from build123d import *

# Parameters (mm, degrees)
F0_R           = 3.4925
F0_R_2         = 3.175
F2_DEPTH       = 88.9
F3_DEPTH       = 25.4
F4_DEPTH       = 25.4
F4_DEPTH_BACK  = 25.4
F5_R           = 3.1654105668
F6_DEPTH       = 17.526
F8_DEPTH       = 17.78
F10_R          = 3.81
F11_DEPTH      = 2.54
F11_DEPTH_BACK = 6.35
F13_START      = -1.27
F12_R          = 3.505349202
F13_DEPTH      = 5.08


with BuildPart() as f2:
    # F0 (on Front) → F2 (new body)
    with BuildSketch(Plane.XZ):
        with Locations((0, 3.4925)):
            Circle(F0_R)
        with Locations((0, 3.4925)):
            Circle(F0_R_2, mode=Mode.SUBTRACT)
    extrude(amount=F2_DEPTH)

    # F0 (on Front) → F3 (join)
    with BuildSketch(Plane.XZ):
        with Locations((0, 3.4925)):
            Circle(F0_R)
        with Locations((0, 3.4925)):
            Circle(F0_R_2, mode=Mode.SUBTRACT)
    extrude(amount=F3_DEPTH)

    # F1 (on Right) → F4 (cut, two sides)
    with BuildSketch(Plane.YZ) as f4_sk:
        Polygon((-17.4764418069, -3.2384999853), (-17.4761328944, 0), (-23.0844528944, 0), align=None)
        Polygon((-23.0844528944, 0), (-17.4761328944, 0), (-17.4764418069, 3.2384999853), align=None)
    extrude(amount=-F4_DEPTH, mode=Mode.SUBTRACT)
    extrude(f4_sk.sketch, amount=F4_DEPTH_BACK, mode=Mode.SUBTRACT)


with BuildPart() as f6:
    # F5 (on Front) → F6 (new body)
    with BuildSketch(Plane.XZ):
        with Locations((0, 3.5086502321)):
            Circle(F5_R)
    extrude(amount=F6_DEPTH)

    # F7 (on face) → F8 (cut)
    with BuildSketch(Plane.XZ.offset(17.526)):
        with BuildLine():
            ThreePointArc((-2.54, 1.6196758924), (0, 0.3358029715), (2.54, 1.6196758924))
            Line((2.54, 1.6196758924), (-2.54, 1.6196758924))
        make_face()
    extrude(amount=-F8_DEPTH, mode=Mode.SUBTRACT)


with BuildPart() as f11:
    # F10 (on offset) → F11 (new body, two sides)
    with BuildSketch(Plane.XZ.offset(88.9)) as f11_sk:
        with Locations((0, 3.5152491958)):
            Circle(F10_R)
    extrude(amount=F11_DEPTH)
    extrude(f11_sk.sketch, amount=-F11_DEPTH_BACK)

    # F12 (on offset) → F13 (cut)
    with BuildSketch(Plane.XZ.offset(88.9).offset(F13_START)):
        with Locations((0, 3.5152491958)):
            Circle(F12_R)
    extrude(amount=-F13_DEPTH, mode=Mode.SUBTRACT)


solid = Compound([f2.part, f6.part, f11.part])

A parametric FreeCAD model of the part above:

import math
import FreeCAD as App
import Part
import Sketcher
Q = App.Units.Quantity

doc = App.newDocument("Part")
body = doc.addObject("PartDesign::Body", "Body")

sketch1 = body.newObject("Sketcher::SketchObject", "Sketch")
sketch1.AttachmentSupport = (doc.getObject("XZ_Plane"), [""])
sketch1.MapMode = "FlatFace"
sketch1.addGeometry([
    Part.Circle(App.Vector(0, 3.4925, 0), App.Vector(0, 0, 1), 3.4925),
    Part.Circle(App.Vector(0, 3.4925, 0), App.Vector(0, 0, 1), 3.175),
], False)
sketch1.addConstraint([
    Sketcher.Constraint("Coincident", 1, 3, 0, 3),
    Sketcher.Constraint("PointOnObject", 0, 3, -2),
    Sketcher.Constraint("Diameter", 1, Q("0.25 in")),
    Sketcher.Constraint("Diameter", 0, Q("0.275 in")),
    Sketcher.Constraint("DistanceY", -1, 1, 0, 3, Q("0.1375 in")),
])
pad1 = body.newObject("PartDesign::Pad", "Pad")
pad1.Profile = sketch1
pad1.Length = Q("3.5 in")

sketch2 = body.newObject("Sketcher::SketchObject", "Sketch001")
sketch2.AttachmentSupport = (doc.getObject("XZ_Plane"), [""])
sketch2.MapMode = "FlatFace"
sketch2.addGeometry([
    Part.Circle(App.Vector(0, 3.4925, 0), App.Vector(0, 0, 1), 3.4925),
    Part.Circle(App.Vector(0, 3.4925, 0), App.Vector(0, 0, 1), 3.175),
], False)
sketch2.addConstraint([
    Sketcher.Constraint("Coincident", 1, 3, 0, 3),
    Sketcher.Constraint("PointOnObject", 0, 3, -2),
    Sketcher.Constraint("Diameter", 1, Q("0.25 in")),
    Sketcher.Constraint("Diameter", 0, Q("0.275 in")),
    Sketcher.Constraint("DistanceY", -1, 1, 0, 3, Q("0.1375 in")),
])
pad2 = body.newObject("PartDesign::Pad", "Pad001")
pad2.Profile = sketch2
pad2.Length = Q("1 in")

sketch3 = body.newObject("Sketcher::SketchObject", "Sketch002")
sketch3.AttachmentSupport = (doc.getObject("YZ_Plane"), [""])
sketch3.MapMode = "FlatFace"
sketch3.addGeometry([
    Part.LineSegment(App.Vector(-17.476442, -3.2385, 0), App.Vector(-17.476133, 0, 0)),
    Part.LineSegment(App.Vector(-17.476133, 0, 0), App.Vector(-17.476442, 3.2385, 0)),
    Part.LineSegment(App.Vector(-17.476442, 3.2385, 0), App.Vector(-23.084453, 0, 0)),
    Part.LineSegment(App.Vector(-23.084453, 0, 0), App.Vector(-17.476442, -3.2385, 0)),
], False)
sketch3.addConstraint([
    Sketcher.Constraint("Coincident", 0, 2, 1, 1),
    Sketcher.Constraint("Coincident", 1, 2, 2, 1),
    Sketcher.Constraint("Coincident", 2, 2, 3, 1),
    Sketcher.Constraint("Coincident", 3, 2, 0, 1),
    Sketcher.Constraint("Symmetric", 1, 2, 3, 2, -1),
    Sketcher.Constraint("PointOnObject", 0, 2, -1),
    Sketcher.Constraint("PointOnObject", 2, 2, -1),
    Sketcher.Constraint("DistanceY", 3, 2, 1, 2, Q("0.255 in")),
    Sketcher.Constraint("DistanceX", 2, 2, 0, 2, Q("0.2208 in")),
    Sketcher.Constraint("Distance", 2, 6.47593),
    Sketcher.Constraint("DistanceX", 1, 2, -1, 1, 17.476442),
])
pocket1 = body.newObject("PartDesign::Pocket", "Pocket")
pocket1.Profile = sketch3
pocket1.Type = "ThroughAll"
pocket1.Midplane = True
body2 = doc.addObject("PartDesign::Body", "Body001")

sketch4 = body2.newObject("Sketcher::SketchObject", "Sketch003")
sketch4.AttachmentSupport = (doc.getObject("XZ_Plane001"), [""])
sketch4.MapMode = "FlatFace"
sketch4.addGeometry(Part.Circle(App.Vector(0, 3.50865, 0), App.Vector(0, 0, 1), 3.165411), False)
sketch4.addConstraint([
    Sketcher.Constraint("PointOnObject", 0, 3, -2),
    Sketcher.Constraint("Diameter", 0, 6.330821),
    Sketcher.Constraint("DistanceY", -1, 1, 0, 3, 3.50865),
])
pad3 = body2.newObject("PartDesign::Pad", "Pad002")
pad3.Profile = sketch4
pad3.Length = Q("0.69 in")

sketch5 = body2.newObject("Sketcher::SketchObject", "Sketch004")
sketch5.AttachmentSupport = (doc.getObject("XZ_Plane001"), [""])
sketch5.MapMode = "FlatFace"
sketch5.AttachmentOffset = App.Placement(App.Vector(0, 0, 0.69 * 25.4), App.Rotation())
sketch5.addGeometry([
    Part.ArcOfCircle(Part.Circle(App.Vector(0, 3.490293, 0), App.Vector(0, 0, 1), 3.15449), math.radians(-143.629707), math.radians(-36.370293)),
    Part.LineSegment(App.Vector(2.54, 1.619676, 0), App.Vector(-2.54, 1.619676, 0)),
], False)
sketch5.addConstraint([
    Sketcher.Constraint("Coincident", 0, 1, 1, 2),
    Sketcher.Constraint("Coincident", 1, 1, 0, 2),
    Sketcher.Constraint("Horizontal", 1),
    Sketcher.Constraint("PointOnObject", 0, 3, -2),
    Sketcher.Constraint("DistanceX", 1, 2, 1, 1, Q("0.2 in")),
    Sketcher.Constraint("Radius", 0, 3.15449),
    Sketcher.Constraint("DistanceY", -1, 1, 0, 3, 3.490293),
])
pocket2 = body2.newObject("PartDesign::Pocket", "Pocket001")
pocket2.Profile = sketch5
pocket2.Length = Q("0.7 in")
body3 = doc.addObject("PartDesign::Body", "Body002")

sketch6 = body3.newObject("Sketcher::SketchObject", "Sketch005")
sketch6.AttachmentSupport = (doc.getObject("XZ_Plane002"), [""])
sketch6.MapMode = "FlatFace"
sketch6.AttachmentOffset = App.Placement(App.Vector(0, 0, 3.5 * 25.4), App.Rotation())
sketch6.addGeometry(Part.Circle(App.Vector(0, 3.515249, 0), App.Vector(0, 0, 1), 3.81), False)
sketch6.addConstraint([
    Sketcher.Constraint("PointOnObject", 0, 3, -2),
    Sketcher.Constraint("Diameter", 0, Q("0.3 in")),
    Sketcher.Constraint("DistanceY", -1, 1, 0, 3, 3.515249),
])
pad4 = body3.newObject("PartDesign::Pad", "Pad003")
pad4.Profile = sketch6
pad4.Type = "TwoLengths"
pad4.Length = Q("0.1 in")
pad4.Length2 = Q("0.25 in")

sketch7 = body3.newObject("Sketcher::SketchObject", "Sketch006")
sketch7.AttachmentSupport = (doc.getObject("XZ_Plane002"), [""])
sketch7.MapMode = "FlatFace"
sketch7.AttachmentOffset = App.Placement(App.Vector(0, 0, 3.45 * 25.4), App.Rotation())
sketch7.addGeometry(Part.Circle(App.Vector(0, 3.515249, 0), App.Vector(0, 0, 1), 3.505349), False)
sketch7.addConstraint([
    Sketcher.Constraint("PointOnObject", 0, 3, -2),
    Sketcher.Constraint("Diameter", 0, 7.010698),
    Sketcher.Constraint("DistanceY", -1, 1, 0, 3, 3.515249),
])
pocket3 = body3.newObject("PartDesign::Pocket", "Pocket002")
pocket3.Profile = sketch7
pocket3.Length = Q("0.2 in")

doc.recompute()
